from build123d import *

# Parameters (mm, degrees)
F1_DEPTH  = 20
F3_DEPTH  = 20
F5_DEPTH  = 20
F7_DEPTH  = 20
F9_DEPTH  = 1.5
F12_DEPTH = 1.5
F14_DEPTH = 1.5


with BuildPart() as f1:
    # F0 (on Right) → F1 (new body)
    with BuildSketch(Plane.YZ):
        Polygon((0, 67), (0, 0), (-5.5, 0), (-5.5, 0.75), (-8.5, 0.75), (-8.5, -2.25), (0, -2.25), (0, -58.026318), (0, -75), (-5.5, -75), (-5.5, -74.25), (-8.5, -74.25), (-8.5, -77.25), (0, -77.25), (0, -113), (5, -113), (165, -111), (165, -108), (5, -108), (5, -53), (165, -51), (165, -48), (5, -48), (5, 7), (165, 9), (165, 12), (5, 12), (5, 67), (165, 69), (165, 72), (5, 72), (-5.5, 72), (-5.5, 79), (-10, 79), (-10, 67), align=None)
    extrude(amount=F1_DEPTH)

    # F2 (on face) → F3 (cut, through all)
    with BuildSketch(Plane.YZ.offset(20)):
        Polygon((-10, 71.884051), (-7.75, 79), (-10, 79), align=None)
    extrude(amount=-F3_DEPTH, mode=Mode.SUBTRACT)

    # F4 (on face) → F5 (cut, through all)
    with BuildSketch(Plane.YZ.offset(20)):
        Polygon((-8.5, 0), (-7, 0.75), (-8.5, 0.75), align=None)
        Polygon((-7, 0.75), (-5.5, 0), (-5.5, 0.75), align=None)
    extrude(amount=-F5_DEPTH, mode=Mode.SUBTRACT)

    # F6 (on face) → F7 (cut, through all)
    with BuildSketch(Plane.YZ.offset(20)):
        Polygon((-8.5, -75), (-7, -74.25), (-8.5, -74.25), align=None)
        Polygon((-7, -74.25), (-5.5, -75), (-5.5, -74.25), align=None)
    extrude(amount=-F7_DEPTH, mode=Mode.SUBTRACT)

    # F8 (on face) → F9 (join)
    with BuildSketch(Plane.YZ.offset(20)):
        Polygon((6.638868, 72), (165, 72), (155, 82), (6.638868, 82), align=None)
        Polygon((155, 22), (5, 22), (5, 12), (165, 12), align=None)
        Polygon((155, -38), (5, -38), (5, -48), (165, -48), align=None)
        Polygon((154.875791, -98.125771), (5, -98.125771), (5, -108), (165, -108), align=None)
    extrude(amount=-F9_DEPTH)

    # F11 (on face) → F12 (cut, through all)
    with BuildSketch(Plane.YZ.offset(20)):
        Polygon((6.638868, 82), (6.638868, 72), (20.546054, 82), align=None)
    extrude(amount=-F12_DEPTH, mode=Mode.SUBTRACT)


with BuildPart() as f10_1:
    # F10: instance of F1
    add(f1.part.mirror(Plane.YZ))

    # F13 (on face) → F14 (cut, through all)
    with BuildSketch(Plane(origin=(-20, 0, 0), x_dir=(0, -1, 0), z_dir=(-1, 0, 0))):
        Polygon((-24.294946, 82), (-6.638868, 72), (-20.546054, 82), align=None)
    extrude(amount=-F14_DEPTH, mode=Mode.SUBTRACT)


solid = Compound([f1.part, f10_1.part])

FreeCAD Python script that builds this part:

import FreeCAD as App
import Part
import Sketcher
from FreeCAD import Vector
Q = App.Units.Quantity

doc = App.newDocument("Part")
params = doc.addObject("Spreadsheet::Sheet", "Params")
for row, (alias, value) in enumerate([
    ("sketch1_width", "3 mm"),
    ("sketch1_width2", "5 mm"),
    ("sketch1_width3", "160 mm"),
    ("sketch1_width4", "10 mm"),
    ("sketch1_height", "67 mm"),
    ("pad1_length", "20 mm"),
    ("sketch2_width", "2.25 mm"),
    ("sketch3_width", "1.5 mm"),
    ("sketch3_height", "0.75 mm"),
    ("sketch4_width", "1.5 mm"),
    ("sketch4_height", "0.75 mm"),
    ("sketch5_width", "150 mm"),
    ("sketch5_width2", "160 mm"),
    ("sketch5_height", "10 mm"),
    ("pad2_length", "1.5 mm"),
    ("sketch6_height", "10 mm"),
], start=1):
    params.set(f"A{row}", alias)
    params.set(f"B{row}", "=" + value)
    params.setAlias(f"B{row}", alias)

body = doc.addObject("PartDesign::Body", "Body")

# Sketch on YZ plane
sketch1 = body.newObject("Sketcher::SketchObject", "Sketch")
sketch1.AttachmentSupport = (doc.getObject("YZ_Plane"), [""])
sketch1.MapMode = "FlatFace"
sketch1.addGeometry(Part.LineSegment(Vector(0, 67, 0), Vector(0, 0, 0)), False)
sketch1.addGeometry(Part.LineSegment(Vector(0, 0, 0), Vector(-5.5, 0, 0)), False)
sketch1.addGeometry(Part.LineSegment(Vector(-5.5, 0, 0), Vector(-5.5, 0.8, 0)), False)
sketch1.addGeometry(Part.LineSegment(Vector(-5.5, 0.8, 0), Vector(-8.5, 0.8, 0)), False)
sketch1.addGeometry(Part.LineSegment(Vector(-8.5, 0.8, 0), Vector(-8.5, -2.2, 0)), False)
sketch1.addGeometry(Part.LineSegment(Vector(-8.5, -2.2, 0), Vector(0, -2.2, 0)), False)
sketch1.addGeometry(Part.LineSegment(Vector(0, -2.2, 0), Vector(0, -75, 0)), False)
sketch1.addGeometry(Part.LineSegment(Vector(0, -75, 0), Vector(-5.5, -75, 0)), False)
sketch1.addGeometry(Part.LineSegment(Vector(-5.5, -75, 0), Vector(-5.5, -74.2, 0)), False)
sketch1.addGeometry(Part.LineSegment(Vector(-5.5, -74.2, 0), Vector(-8.5, -74.2, 0)), False)
sketch1.addGeometry(Part.LineSegment(Vector(-8.5, -74.2, 0), Vector(-8.5, -77.2, 0)), False)
sketch1.addGeometry(Part.LineSegment(Vector(-8.5, -77.2, 0), Vector(0, -77.2, 0)), False)
sketch1.addGeometry(Part.LineSegment(Vector(0, -77.2, 0), Vector(0, -113, 0)), False)
sketch1.addGeometry(Part.LineSegment(Vector(0, -113, 0), Vector(5, -113, 0)), False)
sketch1.addGeometry(Part.LineSegment(Vector(5, -113, 0), Vector(165, -111, 0)), False)
sketch1.addGeometry(Part.LineSegment(Vector(165, -111, 0), Vector(165, -108, 0)), False)
sketch1.addGeometry(Part.LineSegment(Vector(165, -108, 0), Vector(5, -108, 0)), False)
sketch1.addGeometry(Part.LineSegment(Vector(5, -108, 0), Vector(5, -53, 0)), False)
sketch1.addGeometry(Part.LineSegment(Vector(5, -53, 0), Vector(165, -51, 0)), False)
sketch1.addGeometry(Part.LineSegment(Vector(165, -51, 0), Vector(165, -48, 0)), False)
sketch1.addGeometry(Part.LineSegment(Vector(165, -48, 0), Vector(5, -48, 0)), False)
sketch1.addGeometry(Part.LineSegment(Vector(5, -48, 0), Vector(5, 7, 0)), False)
sketch1.addGeometry(Part.LineSegment(Vector(5, 7, 0), Vector(165, 9, 0)), False)
sketch1.addGeometry(Part.LineSegment(Vector(165, 9, 0), Vector(165, 12, 0)), False)
sketch1.addGeometry(Part.LineSegment(Vector(165, 12, 0), Vector(5, 12, 0)), False)
sketch1.addGeometry(Part.LineSegment(Vector(5, 12, 0), Vector(5, 67, 0)), False)
sketch1.addGeometry(Part.LineSegment(Vector(5, 67, 0), Vector(165, 69, 0)), False)
sketch1.addGeometry(Part.LineSegment(Vector(165, 69, 0), Vector(165, 72, 0)), False)
sketch1.addGeometry(Part.LineSegment(Vector(165, 72, 0), Vector(-5.5, 72, 0)), False)
sketch1.addGeometry(Part.LineSegment(Vector(-5.5, 72, 0), Vector(-5.5, 79, 0)), False)
sketch1.addGeometry(Part.LineSegment(Vector(-5.5, 79, 0), Vector(-10, 79, 0)), False)
sketch1.addGeometry(Part.LineSegment(Vector(-10, 79, 0), Vector(-10, 67, 0)), False)
sketch1.addGeometry(Part.LineSegment(Vector(-10, 67, 0), Vector(0, 67, 0)), False)
sketch1.addConstraint(Sketcher.Constraint("Coincident", 0, 2, 1, 1))
sketch1.addConstraint(Sketcher.Constraint("Coincident", 1, 2, 2, 1))
sketch1.addConstraint(Sketcher.Constraint("Coincident", 2, 2, 3, 1))
sketch1.addConstraint(Sketcher.Constraint("Coincident", 3, 2, 4, 1))
sketch1.addConstraint(Sketcher.Constraint("Coincident", 4, 2, 5, 1))
sketch1.addConstraint(Sketcher.Constraint("Coincident", 5, 2, 6, 1))
sketch1.addConstraint(Sketcher.Constraint("Coincident", 6, 2, 7, 1))
sketch1.addConstraint(Sketcher.Constraint("Coincident", 7, 2, 8, 1))
sketch1.addConstraint(Sketcher.Constraint("Coincident", 8, 2, 9, 1))
sketch1.addConstraint(Sketcher.Constraint("Coincident", 9, 2, 10, 1))
sketch1.addConstraint(Sketcher.Constraint("Coincident", 10, 2, 11, 1))
sketch1.addConstraint(Sketcher.Constraint("Coincident", 11, 2, 12, 1))
sketch1.addConstraint(Sketcher.Constraint("Coincident", 12, 2, 13, 1))
sketch1.addConstraint(Sketcher.Constraint("Coincident", 13, 2, 14, 1))
sketch1.addConstraint(Sketcher.Constraint("Coincident", 14, 2, 15, 1))
sketch1.addConstraint(Sketcher.Constraint("Coincident", 15, 2, 16, 1))
sketch1.addConstraint(Sketcher.Constraint("Coincident", 16, 2, 17, 1))
sketch1.addConstraint(Sketcher.Constraint("Coincident", 17, 2, 18, 1))
sketch1.addConstraint(Sketcher.Constraint("Coincident", 18, 2, 19, 1))
sketch1.addConstraint(Sketcher.Constraint("Coincident", 19, 2, 20, 1))
sketch1.addConstraint(Sketcher.Constraint("Coincident", 20, 2, 21, 1))
sketch1.addConstraint(Sketcher.Constraint("Coincident", 21, 2, 22, 1))
sketch1.addConstraint(Sketcher.Constraint("Coincident", 22, 2, 23, 1))
sketch1.addConstraint(Sketcher.Constraint("Coincident", 23, 2, 24, 1))
sketch1.addConstraint(Sketcher.Constraint("Coincident", 24, 2, 25, 1))
sketch1.addConstraint(Sketcher.Constraint("Coincident", 25, 2, 26, 1))
sketch1.addConstraint(Sketcher.Constraint("Coincident", 26, 2, 27, 1))
sketch1.addConstraint(Sketcher.Constraint("Coincident", 27, 2, 28, 1))
sketch1.addConstraint(Sketcher.Constraint("Coincident", 28, 2, 29, 1))
sketch1.addConstraint(Sketcher.Constraint("Coincident", 29, 2, 30, 1))
sketch1.addConstraint(Sketcher.Constraint("Coincident", 30, 2, 31, 1))
sketch1.addConstraint(Sketcher.Constraint("Coincident", 31, 2, 32, 1))
sketch1.addConstraint(Sketcher.Constraint("Coincident", 32, 2, 0, 1))
sketch1.addConstraint(Sketcher.Constraint("Vertical", 0))
sketch1.addConstraint(Sketcher.Constraint("Horizontal", 1))
sketch1.addConstraint(Sketcher.Constraint("Vertical", 2))
sketch1.addConstraint(Sketcher.Constraint("Horizontal", 3))
sketch1.addConstraint(Sketcher.Constraint("Vertical", 4))
sketch1.addConstraint(Sketcher.Constraint("Horizontal", 5))
sketch1.addConstraint(Sketcher.Constraint("Vertical", 6))
sketch1.addConstraint(Sketcher.Constraint("Horizontal", 7))
sketch1.addConstraint(Sketcher.Constraint("Vertical", 8))
sketch1.addConstraint(Sketcher.Constraint("Horizontal", 9))
sketch1.addConstraint(Sketcher.Constraint("Vertical", 10))
sketch1.addConstraint(Sketcher.Constraint("Horizontal", 11))
sketch1.addConstraint(Sketcher.Constraint("Vertical", 12))
sketch1.addConstraint(Sketcher.Constraint("Horizontal", 13))
sketch1.addConstraint(Sketcher.Constraint("Vertical", 15))
sketch1.addConstraint(Sketcher.Constraint("Horizontal", 16))
sketch1.addConstraint(Sketcher.Constraint("Vertical", 17))
sketch1.addConstraint(Sketcher.Constraint("Vertical", 19))
sketch1.addConstraint(Sketcher.Constraint("Horizontal", 20))
sketch1.addConstraint(Sketcher.Constraint("Vertical", 21))
sketch1.addConstraint(Sketcher.Constraint("Vertical", 23))
sketch1.addConstraint(Sketcher.Constraint("Horizontal", 24))
sketch1.addConstraint(Sketcher.Constraint("Vertical", 25))
sketch1.addConstraint(Sketcher.Constraint("Vertical", 27))
sketch1.addConstraint(Sketcher.Constraint("Horizontal", 28))
sketch1.addConstraint(Sketcher.Constraint("Vertical", 29))
sketch1.addConstraint(Sketcher.Constraint("Horizontal", 30))
sketch1.addConstraint(Sketcher.Constraint("Vertical", 31))
sketch1.addConstraint(Sketcher.Constraint("Horizontal", 32))
sketch1.addConstraint(Sketcher.Constraint("Coincident", 0, 2, -1, 1))
sketch1.addConstraint(Sketcher.Constraint("PointOnObject", 5, 2, -2))
sketch1.addConstraint(Sketcher.Constraint("PointOnObject", 11, 2, -2))
sketch1.addConstraint(Sketcher.Constraint("Parallel", 14, 18))
sketch1.addConstraint(Sketcher.Constraint("Parallel", 18, 22))
sketch1.addConstraint(Sketcher.Constraint("Parallel", 22, 26))
sketch1.addConstraint(Sketcher.Constraint("Horizontal", 25, 2, 31, 2))
sketch1.addConstraint(Sketcher.Constraint("Vertical", 2, 2, 7, 2))
sketch1.addConstraint(Sketcher.Constraint("Vertical", 4, 2, 9, 2))
sketch1.addConstraint(Sketcher.Constraint("Vertical", 13, 2, 16, 2))
sketch1.addConstraint(Sketcher.Constraint("Vertical", 15, 2, 18, 2))
sketch1.addConstraint(Sketcher.Constraint("Vertical", 17, 2, 20, 2))
sketch1.addConstraint(Sketcher.Constraint("Vertical", 19, 2, 22, 2))
sketch1.addConstraint(Sketcher.Constraint("Vertical", 21, 2, 24, 2))
sketch1.addConstraint(Sketcher.Constraint("Vertical", 23, 2, 26, 2))
sketch1.addConstraint(Sketcher.Constraint("Vertical", 8, 2, 28, 2))
sketch1.addConstraint(Sketcher.Constraint("Equal", 9, 4))
sketch1.addConstraint(Sketcher.Constraint("Equal", 2, 8))
sketch1.addConstraint(Sketcher.Constraint("Equal", 4, 10))
sketch1.addConstraint(Sketcher.Constraint("Equal", 10, 15))
sketch1.addConstraint(Sketcher.Constraint("Equal", 15, 19))
sketch1.addConstraint(Sketcher.Constraint("Equal", 17, 21))
sketch1.addConstraint(Sketcher.Constraint("Equal", 19, 23))
sketch1.addConstraint(Sketcher.Constraint("Equal", 21, 25))
sketch1.addConstraint(Sketcher.Constraint("Equal", 23, 27))
sketch1.addConstraint(Sketcher.Constraint("DistanceX", 3, 2, 3, 1, Q("3 mm")))
sketch1.addConstraint(Sketcher.Constraint("DistanceX", 13, 1, 13, 2, Q("5 mm")))
sketch1.addConstraint(Sketcher.Constraint("DistanceX", 16, 2, 16, 1, Q("160 mm")))
sketch1.addConstraint(Sketcher.Constraint("DistanceX", 32, 1, 32, 2, Q("10 mm")))
sketch1.addConstraint(Sketcher.Constraint("DistanceY", 0, 2, 0, 1, Q("67 mm")))
sketch1.addConstraint(Sketcher.Constraint("DistanceY", 17, 1, 17, 2, Q("55 mm")))
sketch1.addConstraint(Sketcher.Constraint("DistanceY", 29, 1, 29, 2, Q("7 mm")))
sketch1.addConstraint(Sketcher.Constraint("DistanceY", 31, 2, 31, 1, Q("12 mm")))
sketch1.addConstraint(Sketcher.Constraint("DistanceX", 1, 2, 1, 1, Q("5.5 mm")))
sketch1.addConstraint(Sketcher.Constraint("DistanceY", 6, 2, -1, 1, Q("75 mm")))
sketch1.addConstraint(Sketcher.Constraint("DistanceY", 2, 1, 2, 2, Q("0.75 mm")))
sketch1.setExpression("Constraints[87]", "Params.sketch1_width")
sketch1.setExpression("Constraints[88]", "Params.sketch1_width2")
sketch1.setExpression("Constraints[89]", "Params.sketch1_width3")
sketch1.setExpression("Constraints[90]", "Params.sketch1_width4")
sketch1.setExpression("Constraints[91]", "Params.sketch1_height")
pad1 = body.newObject("PartDesign::Pad", "Pad")
pad1.Profile = sketch1
pad1.setExpression("Length", "Params.pad1_length")

# Sketch on YZ plane
sketch2 = body.newObject("Sketcher::SketchObject", "Sketch001")
sketch2.AttachmentSupport = (doc.getObject("YZ_Plane"), [""])
sketch2.MapMode = "FlatFace"
sketch2.AttachmentOffset = App.Placement(Vector(0, 0, 20), App.Rotation())
sketch2.addGeometry(Part.LineSegment(Vector(-10, 71.9, 0), Vector(-7.8, 79, 0)), False)
sketch2.addGeometry(Part.LineSegment(Vector(-7.8, 79, 0), Vector(-10, 79, 0)), False)
sketch2.addGeometry(Part.LineSegment(Vector(-10, 79, 0), Vector(-10, 71.9, 0)), False)
sketch2.addConstraint(Sketcher.Constraint("Coincident", 0, 2, 1, 1))
sketch2.addConstraint(Sketcher.Constraint("Coincident", 1, 2, 2, 1))
sketch2.addConstraint(Sketcher.Constraint("Coincident", 2, 2, 0, 1))
sketch2.addConstraint(Sketcher.Constraint("Horizontal", 1))
sketch2.addConstraint(Sketcher.Constraint("Vertical", 2))
sketch2.addConstraint(Sketcher.Constraint("DistanceY", -1, 1, 0, 2, Q("79 mm")))
sketch2.addConstraint(Sketcher.Constraint("DistanceX", 1, 2, -1, 1, Q("10 mm")))
sketch2.addConstraint(Sketcher.Constraint("DistanceX", 1, 2, 1, 1, Q("2.25 mm")))
sketch2.addConstraint(Sketcher.Constraint("DistanceY", 2, 2, 2, 1, Q("7.115949 mm")))
sketch2.setExpression("Constraints[7]", "Params.sketch2_width")
pocket1 = body.newObject("PartDesign::Pocket", "Pocket")
pocket1.Profile = sketch2
pocket1.Type = "ThroughAll"

# Sketch on YZ plane
sketch3 = body.newObject("Sketcher::SketchObject", "Sketch002")
sketch3.AttachmentSupport = (doc.getObject("YZ_Plane"), [""])
sketch3.MapMode = "FlatFace"
sketch3.AttachmentOffset = App.Placement(Vector(0, 0, 20), App.Rotation())
sketch3.addGeometry(Part.LineSegment(Vector(-8.5, 0, 0), Vector(-7, 0.8, 0)), False)
sketch3.addGeometry(Part.LineSegment(Vector(-7, 0.8, 0), Vector(-8.5, 0.8, 0)), False)
sketch3.addGeometry(Part.LineSegment(Vector(-8.5, 0.8, 0), Vector(-8.5, 0, 0)), False)
sketch3.addGeometry(Part.LineSegment(Vector(-7, 0.8, 0), Vector(-5.5, 0, 0)), False)
sketch3.addGeometry(Part.LineSegment(Vector(-5.5, 0, 0), Vector(-5.5, 0.8, 0)), False)
sketch3.addGeometry(Part.LineSegment(Vector(-5.5, 0.8, 0), Vector(-7, 0.8, 0)), False)
sketch3.addConstraint(Sketcher.Constraint("Coincident", 0, 2, 1, 1))
sketch3.addConstraint(Sketcher.Constraint("Coincident", 1, 2, 2, 1))
sketch3.addConstraint(Sketcher.Constraint("Coincident", 2, 2, 0, 1))
sketch3.addConstraint(Sketcher.Constraint("Coincident", 3, 2, 4, 1))
sketch3.addConstraint(Sketcher.Constraint("Coincident", 4, 2, 5, 1))
sketch3.addConstraint(Sketcher.Constraint("Coincident", 5, 2, 3, 1))
sketch3.addConstraint(Sketcher.Constraint("Horizontal", 1))
sketch3.addConstraint(Sketcher.Constraint("Vertical", 2))
sketch3.addConstraint(Sketcher.Constraint("Vertical", 4))
sketch3.addConstraint(Sketcher.Constraint("Horizontal", 5))
sketch3.addConstraint(Sketcher.Constraint("Coincident", 5, 2, 0, 2))
sketch3.addConstraint(Sketcher.Constraint("PointOnObject", 2, 2, -1))
sketch3.addConstraint(Sketcher.Constraint("PointOnObject", 3, 2, -1))
sketch3.addConstraint(Sketcher.Constraint("Equal", 1, 5))
sketch3.addConstraint(Sketcher.Constraint("DistanceX", 1, 2, 1, 1, Q("1.5 mm")))
sketch3.addConstraint(Sketcher.Constraint("DistanceX", 0, 2, -1, 1, Q("7 mm")))
sketch3.addConstraint(Sketcher.Constraint("DistanceY", 2, 2, 2, 1, Q("0.75 mm")))
sketch3.setExpression("Constraints[14]", "Params.sketch3_width")
sketch3.setExpression("Constraints[16]", "Params.sketch3_height")
pocket2 = body.newObject("PartDesign::Pocket", "Pocket001")
pocket2.Profile = sketch3
pocket2.Type = "ThroughAll"

# Sketch on YZ plane
sketch4 = body.newObject("Sketcher::SketchObject", "Sketch003")
sketch4.AttachmentSupport = (doc.getObject("YZ_Plane"), [""])
sketch4.MapMode = "FlatFace"
sketch4.AttachmentOffset = App.Placement(Vector(0, 0, 20), App.Rotation())
sketch4.addGeometry(Part.LineSegment(Vector(-8.5, -75, 0), Vector(-7, -74.2, 0)), False)
sketch4.addGeometry(Part.LineSegment(Vector(-7, -74.2, 0), Vector(-8.5, -74.2, 0)), False)
sketch4.addGeometry(Part.LineSegment(Vector(-8.5, -74.2, 0), Vector(-8.5, -75, 0)), False)
sketch4.addGeometry(Part.LineSegment(Vector(-7, -74.2, 0), Vector(-5.5, -75, 0)), False)
sketch4.addGeometry(Part.LineSegment(Vector(-5.5, -75, 0), Vector(-5.5, -74.2, 0)), False)
sketch4.addGeometry(Part.LineSegment(Vector(-5.5, -74.2, 0), Vector(-7, -74.2, 0)), False)
sketch4.addConstraint(Sketcher.Constraint("Coincident", 0, 2, 1, 1))
sketch4.addConstraint(Sketcher.Constraint("Coincident", 1, 2, 2, 1))
sketch4.addConstraint(Sketcher.Constraint("Coincident", 2, 2, 0, 1))
sketch4.addConstraint(Sketcher.Constraint("Coincident", 3, 2, 4, 1))
sketch4.addConstraint(Sketcher.Constraint("Coincident", 4, 2, 5, 1))
sketch4.addConstraint(Sketcher.Constraint("Coincident", 5, 2, 3, 1))
sketch4.addConstraint(Sketcher.Constraint("Horizontal", 1))
sketch4.addConstraint(Sketcher.Constraint("Vertical", 2))
sketch4.addConstraint(Sketcher.Constraint("Vertical", 4))
sketch4.addConstraint(Sketcher.Constraint("Horizontal", 5))
sketch4.addConstraint(Sketcher.Constraint("Coincident", 5, 2, 0, 2))
sketch4.addConstraint(Sketcher.Constraint("Horizontal", 2, 2, 3, 2))
sketch4.addConstraint(Sketcher.Constraint("Equal", 1, 5))
sketch4.addConstraint(Sketcher.Constraint("DistanceX", 1, 2, 1, 1, Q("1.5 mm")))
sketch4.addConstraint(Sketcher.Constraint("DistanceX", 0, 2, -1, 1, Q("7 mm")))
sketch4.addConstraint(Sketcher.Constraint("DistanceY", 2, 2, -1, 1, Q("75 mm")))
sketch4.addConstraint(Sketcher.Constraint("DistanceY", 2, 2, 2, 1, Q("0.75 mm")))
sketch4.setExpression("Constraints[13]", "Params.sketch4_width")
sketch4.setExpression("Constraints[16]", "Params.sketch4_height")
pocket3 = body.newObject("PartDesign::Pocket", "Pocket002")
pocket3.Profile = sketch4
pocket3.Type = "ThroughAll"

# Sketch on YZ plane
sketch5 = body.newObject("Sketcher::SketchObject", "Sketch004")
sketch5.AttachmentSupport = (doc.getObject("YZ_Plane"), [""])
sketch5.MapMode = "FlatFace"
sketch5.AttachmentOffset = App.Placement(Vector(0, 0, 20), App.Rotation())
sketch5.addGeometry(Part.LineSegment(Vector(7, 72, 0), Vector(165, 72, 0)), False)
sketch5.addGeometry(Part.LineSegment(Vector(165, 72, 0), Vector(155, 82, 0)), False)
sketch5.addGeometry(Part.LineSegment(Vector(155, 82, 0), Vector(7, 82, 0)), False)
sketch5.addGeometry(Part.LineSegment(Vector(7, 82, 0), Vector(7, 72, 0)), False)
sketch5.addGeometry(Part.LineSegment(Vector(155, 22, 0), Vector(5, 22, 0)), False)
sketch5.addGeometry(Part.LineSegment(Vector(5, 22, 0), Vector(5, 12, 0)), False)
sketch5.addGeometry(Part.LineSegment(Vector(5, 12, 0), Vector(165, 12, 0)), False)
sketch5.addGeometry(Part.LineSegment(Vector(165, 12, 0), Vector(155, 22, 0)), False)
sketch5.addGeometry(Part.LineSegment(Vector(155, -38, 0), Vector(5, -38, 0)), False)
sketch5.addGeometry(Part.LineSegment(Vector(5, -38, 0), Vector(5, -48, 0)), False)
sketch5.addGeometry(Part.LineSegment(Vector(5, -48, 0), Vector(165, -48, 0)), False)
sketch5.addGeometry(Part.LineSegment(Vector(165, -48, 0), Vector(155, -38, 0)), False)
sketch5.addGeometry(Part.LineSegment(Vector(155, -98, 0), Vector(5, -98, 0)), False)
sketch5.addGeometry(Part.LineSegment(Vector(5, -98, 0), Vector(5, -108, 0)), False)
sketch5.addGeometry(Part.LineSegment(Vector(5, -108, 0), Vector(165, -108, 0)), False)
sketch5.addGeometry(Part.LineSegment(Vector(165, -108, 0), Vector(155, -98, 0)), False)
sketch5.addConstraint(Sketcher.Constraint("Coincident", 0, 2, 1, 1))
sketch5.addConstraint(Sketcher.Constraint("Coincident", 1, 2, 2, 1))
sketch5.addConstraint(Sketcher.Constraint("Coincident", 2, 2, 3, 1))
sketch5.addConstraint(Sketcher.Constraint("Coincident", 3, 2, 0, 1))
sketch5.addConstraint(Sketcher.Constraint("Coincident", 4, 2, 5, 1))
sketch5.addConstraint(Sketcher.Constraint("Coincident", 5, 2, 6, 1))
sketch5.addConstraint(Sketcher.Constraint("Coincident", 6, 2, 7, 1))
sketch5.addConstraint(Sketcher.Constraint("Coincident", 7, 2, 4, 1))
sketch5.addConstraint(Sketcher.Constraint("Coincident", 8, 2, 9, 1))
sketch5.addConstraint(Sketcher.Constraint("Coincident", 9, 2, 10, 1))
sketch5.addConstraint(Sketcher.Constraint("Coincident", 10, 2, 11, 1))
sketch5.addConstraint(Sketcher.Constraint("Coincident", 11, 2, 8, 1))
sketch5.addConstraint(Sketcher.Constraint("Coincident", 12, 2, 13, 1))
sketch5.addConstraint(Sketcher.Constraint("Coincident", 13, 2, 14, 1))
sketch5.addConstraint(Sketcher.Constraint("Coincident", 14, 2, 15, 1))
sketch5.addConstraint(Sketcher.Constraint("Coincident", 15, 2, 12, 1))
sketch5.addConstraint(Sketcher.Constraint("Horizontal", 0))
sketch5.addConstraint(Sketcher.Constraint("Horizontal", 2))
sketch5.addConstraint(Sketcher.Constraint("Vertical", 3))
sketch5.addConstraint(Sketcher.Constraint("Horizontal", 4))
sketch5.addConstraint(Sketcher.Constraint("Vertical", 5))
sketch5.addConstraint(Sketcher.Constraint("Horizontal", 6))
sketch5.addConstraint(Sketcher.Constraint("Horizontal", 8))
sketch5.addConstraint(Sketcher.Constraint("Vertical", 9))
sketch5.addConstraint(Sketcher.Constraint("Horizontal", 10))
sketch5.addConstraint(Sketcher.Constraint("Horizontal", 12))
sketch5.addConstraint(Sketcher.Constraint("Vertical", 13))
sketch5.addConstraint(Sketcher.Constraint("Horizontal", 14))
sketch5.addConstraint(Sketcher.Constraint("Parallel", 1, 7))
sketch5.addConstraint(Sketcher.Constraint("Parallel", 7, 11))
sketch5.addConstraint(Sketcher.Constraint("Vertical", 0, 2, 6, 2))
sketch5.addConstraint(Sketcher.Constraint("Vertical", 1, 2, 7, 2))
sketch5.addConstraint(Sketcher.Constraint("Vertical", 5, 2, 8, 2))
sketch5.addConstraint(Sketcher.Constraint("Vertical", 6, 2, 10, 2))
sketch5.addConstraint(Sketcher.Constraint("Vertical", 7, 2, 11, 2))
sketch5.addConstraint(Sketcher.Constraint("Vertical", 9, 2, 12, 2))
sketch5.addConstraint(Sketcher.Constraint("Vertical", 10, 2, 14, 2))
sketch5.addConstraint(Sketcher.Constraint("Equal", 11, 15))
sketch5.addConstraint(Sketcher.Constraint("DistanceX", 4, 2, 4, 1, Q("150 mm")))
sketch5.addConstraint(Sketcher.Constraint("DistanceX", 6, 1, 6, 2, Q("160 mm")))
sketch5.addConstraint(Sketcher.Constraint("DistanceY", 3, 2, 3, 1, Q("10 mm")))
sketch5.addConstraint(Sketcher.Constraint("DistanceX", -1, 1, 0, 2, Q("165 mm")))
sketch5.addConstraint(Sketcher.Constraint("DistanceY", -1, 1, 0, 2, Q("72 mm")))
sketch5.addConstraint(Sketcher.Constraint("DistanceY", -1, 1, 4, 2, Q("22 mm")))
sketch5.addConstraint(Sketcher.Constraint("DistanceY", 8, 2, -1, 1, Q("38 mm")))
sketch5.addConstraint(Sketcher.Constraint("DistanceY", 13, 2, -1, 1, Q("108 mm")))
sketch5.addConstraint(Sketcher.Constraint("DistanceX", 0, 1, 0, 2, Q("158.361132 mm")))
sketch5.addConstraint(Sketcher.Constraint("DistanceX", 12, 2, 12, 1, Q("149.875791 mm")))
sketch5.setExpression("Constraints[38]", "Params.sketch5_width")
sketch5.setExpression("Constraints[39]", "Params.sketch5_width2")
sketch5.setExpression("Constraints[40]", "Params.sketch5_height")
pad2 = body.newObject("PartDesign::Pad", "Pad001")
pad2.Profile = sketch5
pad2.setExpression("Length", "Params.pad2_length")
pad2.Reversed = True

# Sketch on YZ plane
sketch6 = body.newObject("Sketcher::SketchObject", "Sketch005")
sketch6.AttachmentSupport = (doc.getObject("YZ_Plane"), [""])
sketch6.MapMode = "FlatFace"
sketch6.AttachmentOffset = App.Placement(Vector(0, 0, 20), App.Rotation())
sketch6.addGeometry(Part.LineSegment(Vector(7, 82, 0), Vector(7, 72, 0)), False)
sketch6.addGeometry(Part.LineSegment(Vector(7, 72, 0), Vector(21, 82, 0)), False)
sketch6.addGeometry(Part.LineSegment(Vector(21, 82, 0), Vector(7, 82, 0)), False)
sketch6.addConstraint(Sketcher.Constraint("Coincident", 0, 2, 1, 1))
sketch6.addConstraint(Sketcher.Constraint("Coincident", 1, 2, 2, 1))
sketch6.addConstraint(Sketcher.Constraint("Coincident", 2, 2, 0, 1))
sketch6.addConstraint(Sketcher.Constraint("Vertical", 0))
sketch6.addConstraint(Sketcher.Constraint("Horizontal", 2))
sketch6.addConstraint(Sketcher.Constraint("DistanceY", 0, 2, 0, 1, Q("10 mm")))
sketch6.addConstraint(Sketcher.Constraint("DistanceY", -1, 1, 0, 2, Q("72 mm")))
sketch6.addConstraint(Sketcher.Constraint("Distance", 1, Q("17.12921 mm")))
sketch6.addConstraint(Sketcher.Constraint("DistanceX", -1, 1, 0, 2, Q("6.638868 mm")))
sketch6.setExpression("Constraints[5]", "Params.sketch6_height")
pocket4 = body.newObject("PartDesign::Pocket", "Pocket003")
pocket4.Profile = sketch6
pocket4.Type = "ThroughAll"
body2 = doc.addObject("PartDesign::Body", "Body001")
doc.recompute()

mirroring = doc.addObject("Part::Mirroring", "Mirroring")
mirroring.Source = body
mirroring.Base = Vector(0, 0, 0)
mirroring.Normal = Vector(1, 0, 0)
body2.BaseFeature = mirroring
doc.recompute()

# Sketch on YZ plane
sketch7 = body2.newObject("Sketcher::SketchObject", "Sketch006")
sketch7.AttachmentSupport = (doc.getObject("YZ_Plane001"), [""])
sketch7.MapMode = "FlatFace"
sketch7.AttachmentOffset = App.Placement(Vector(0, 0, -20), App.Rotation())
sketch7.addGeometry(Part.LineSegment(Vector(24.3, 82, 0), Vector(6.6, 72, 0)), False)
sketch7.addGeometry(Part.LineSegment(Vector(6.6, 72, 0), Vector(20.5, 82, 0)), False)
sketch7.addGeometry(Part.LineSegment(Vector(20.5, 82, 0), Vector(24.3, 82, 0)), False)
sketch7.addConstraint(Sketcher.Constraint("Coincident", 0, 2, 1, 1))
sketch7.addConstraint(Sketcher.Constraint("Coincident", 1, 2, 2, 1))
sketch7.addConstraint(Sketcher.Constraint("Coincident", 2, 2, 0, 1))
sketch7.addConstraint(Sketcher.Constraint("Horizontal", 2))
sketch7.addConstraint(Sketcher.Constraint("DistanceY", -1, 1, 0, 2, Q("72 mm")))
sketch7.addConstraint(Sketcher.Constraint("DistanceY", -1, 1, 1, 2, Q("82 mm")))
sketch7.addConstraint(Sketcher.Constraint("DistanceX", 2, 1, 2, 2, Q("3.748892 mm")))
sketch7.addConstraint(Sketcher.Constraint("Distance", 1, Q("17.12921 mm")))
sketch7.addConstraint(Sketcher.Constraint("DistanceX", -1, 1, 0, 2, Q("6.638868 mm")))
pocket5 = body2.newObject("PartDesign::Pocket", "Pocket004")
pocket5.Profile = sketch7
pocket5.Type = "ThroughAll"
pocket5.Reversed = True
mirroring.Visibility = False

doc.recompute()
